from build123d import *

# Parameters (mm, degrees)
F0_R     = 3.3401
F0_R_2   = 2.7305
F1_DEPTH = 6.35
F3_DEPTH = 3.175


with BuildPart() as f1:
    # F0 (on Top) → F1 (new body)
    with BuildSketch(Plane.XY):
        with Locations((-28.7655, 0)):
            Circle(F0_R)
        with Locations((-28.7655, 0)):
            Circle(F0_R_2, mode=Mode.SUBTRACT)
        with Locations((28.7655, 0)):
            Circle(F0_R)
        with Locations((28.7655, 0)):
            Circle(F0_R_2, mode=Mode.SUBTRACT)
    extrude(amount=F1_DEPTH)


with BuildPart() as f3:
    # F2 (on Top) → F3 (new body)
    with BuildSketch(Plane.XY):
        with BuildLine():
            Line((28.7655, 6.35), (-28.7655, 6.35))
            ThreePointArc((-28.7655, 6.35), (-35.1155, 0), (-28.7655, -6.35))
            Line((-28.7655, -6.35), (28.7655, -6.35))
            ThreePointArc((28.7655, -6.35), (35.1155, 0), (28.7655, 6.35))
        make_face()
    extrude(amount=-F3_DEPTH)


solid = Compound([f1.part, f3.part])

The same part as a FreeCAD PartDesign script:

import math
import FreeCAD as App
import Part
import Sketcher
from FreeCAD import Vector
Q = App.Units.Quantity

doc = App.newDocument("Part")
body = doc.addObject("PartDesign::Body", "Body")
body.AllowCompound = True

sketch1 = body.newObject("Sketcher::SketchObject", "Sketch")
sketch1.AttachmentSupport = (doc.getObject("XY_Plane"), [""])
sketch1.MapMode = "FlatFace"
sketch1.addGeometry([
    Part.Circle(Vector(-28.8, 0, 0), Vector(0, 0, 1), 3.3),
    Part.Circle(Vector(-28.8, 0, 0), Vector(0, 0, 1), 2.7),
    Part.Circle(Vector(28.8, 0, 0), Vector(0, 0, 1), 3.3),
    Part.Circle(Vector(28.8, 0, 0), Vector(0, 0, 1), 2.7),
], False)
sketch1.addConstraint([
    Sketcher.Constraint("Coincident", 1, 3, 0, 3),
    Sketcher.Constraint("Coincident", 3, 3, 2, 3),
    Sketcher.Constraint("Equal", 0, 2),
    Sketcher.Constraint("Equal", 1, 3),
    Sketcher.Constraint("Symmetric", 0, 3, 2, 3, -1, 1),
    Sketcher.Constraint("PointOnObject", 0, 3, -1),
    Sketcher.Constraint("Diameter", 0, Q("0.263 in")),
    Sketcher.Constraint("Diameter", 1, Q("0.215 in")),
    Sketcher.Constraint("DistanceX", 0, 3, 2, 3, Q("2.265 in")),
])
pad1 = body.newObject("PartDesign::Pad", "Pad")
pad1.Profile = sketch1
pad1.Length = Q("0.25 in")
body2 = doc.addObject("PartDesign::Body", "Body001")

sketch2 = body2.newObject("Sketcher::SketchObject", "Sketch001")
sketch2.AttachmentSupport = (doc.getObject("XY_Plane001"), [""])
sketch2.MapMode = "FlatFace"
sketch2.addGeometry([
    Part.LineSegment(Vector(29, 6, 0), Vector(-29, 6, 0)),
    Part.ArcOfCircle(Part.Circle(Vector(-29, 0, 0), Vector(0, 0, 1), 6), math.radians(90), math.radians(270)),
    Part.LineSegment(Vector(-29, -6, 0), Vector(29, -6, 0)),
    Part.ArcOfCircle(Part.Circle(Vector(29, 0, 0), Vector(0, 0, 1), 6), math.radians(-90), math.radians(90)),
], False)
sketch2.addConstraint([
    Sketcher.Constraint("Tangent", 0, 2, 1, 1),
    Sketcher.Constraint("Tangent", 1, 2, 2, 1),
    Sketcher.Constraint("Tangent", 2, 2, 3, 1),
    Sketcher.Constraint("Tangent", 3, 2, 0, 1),
    Sketcher.Constraint("Horizontal", 0),
    Sketcher.Constraint("Horizontal", 2),
    Sketcher.Constraint("Symmetric", 1, 3, 3, 3, -1, 1),
    Sketcher.Constraint("Radius", 1, Q("0.25 in")),
    Sketcher.Constraint("DistanceX", 0, 2, 0, 1, Q("2.265 in")),
])
pad2 = body2.newObject("PartDesign::Pad", "Pad001")
pad2.Profile = sketch2
pad2.Length = Q("0.125 in")
pad2.Reversed = True

doc.recompute()
